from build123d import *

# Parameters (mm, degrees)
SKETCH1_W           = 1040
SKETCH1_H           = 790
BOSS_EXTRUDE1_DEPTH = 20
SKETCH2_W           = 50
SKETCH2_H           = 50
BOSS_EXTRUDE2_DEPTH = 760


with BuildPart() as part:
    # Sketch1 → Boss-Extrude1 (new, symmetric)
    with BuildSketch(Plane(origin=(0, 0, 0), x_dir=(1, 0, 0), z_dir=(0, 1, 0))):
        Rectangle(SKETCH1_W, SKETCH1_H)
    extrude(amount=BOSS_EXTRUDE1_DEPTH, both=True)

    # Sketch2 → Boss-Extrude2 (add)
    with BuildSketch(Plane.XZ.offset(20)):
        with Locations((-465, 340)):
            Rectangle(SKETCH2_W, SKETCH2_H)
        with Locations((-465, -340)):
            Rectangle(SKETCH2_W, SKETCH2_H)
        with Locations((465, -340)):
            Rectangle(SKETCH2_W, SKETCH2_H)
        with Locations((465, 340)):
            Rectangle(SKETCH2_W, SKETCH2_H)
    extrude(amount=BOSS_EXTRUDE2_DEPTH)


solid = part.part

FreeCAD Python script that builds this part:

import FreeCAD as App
import Part
import Sketcher
from FreeCAD import Vector
Q = App.Units.Quantity


def add_polygon(sketch, points):
    """Adds a closed chain of lines whose ends are joined by coincident constraints."""
    first, n = sketch.GeometryCount, len(points)
    for a, b in zip(points, points[1:] + points[:1]):
        sketch.addGeometry(Part.LineSegment(App.Vector(*a, 0), App.Vector(*b, 0)), False)
    for i in range(n):
        sketch.addConstraint(Sketcher.Constraint("Coincident", first + i, 2, first + (i + 1) % n, 1))

doc = App.newDocument("Part")
body = doc.addObject("PartDesign::Body", "Body")

# Sketch on XZ plane
sketch1 = body.newObject("Sketcher::SketchObject", "Sketch")
sketch1.AttachmentSupport = (doc.getObject("XZ_Plane"), [""])
sketch1.MapMode = "FlatFace"
add_polygon(sketch1, [(-520, -395), (-520, 395), (520, 395), (520, -395)])  # lines 0-3
sketch1.addConstraint(Sketcher.Constraint("Vertical", 0))
sketch1.addConstraint(Sketcher.Constraint("Horizontal", 1))
sketch1.addConstraint(Sketcher.Constraint("Vertical", 2))
sketch1.addConstraint(Sketcher.Constraint("Horizontal", 3))
sketch1.addConstraint(Sketcher.Constraint("Symmetric", 0, 2, 2, 2, -1, 1))
sketch1.addConstraint(Sketcher.Constraint("DistanceX", 1, 1, 1, 2, Q("1040 mm")))
sketch1.addConstraint(Sketcher.Constraint("DistanceY", 0, 1, 0, 2, Q("790 mm")))
pad1 = body.newObject("PartDesign::Pad", "Pad")
pad1.Profile = sketch1
pad1.Length = 40
pad1.Midplane = True

# Sketch on XZ plane
sketch2 = body.newObject("Sketcher::SketchObject", "Sketch001")
sketch2.AttachmentSupport = (doc.getObject("XZ_Plane"), [""])
sketch2.MapMode = "FlatFace"
sketch2.AttachmentOffset = App.Placement(Vector(0, 0, 20), App.Rotation())
add_polygon(sketch2, [(-490, 365), (-490, 315), (-440, 315), (-440, 365)])  # lines 0-3
add_polygon(sketch2, [(-490, -315), (-490, -365), (-440, -365), (-440, -315)])  # lines 4-7
add_polygon(sketch2, [(440, -315), (440, -365), (490, -365), (490, -315)])  # lines 8-11
add_polygon(sketch2, [(440, 365), (440, 315), (490, 315), (490, 365)])  # lines 12-15
sketch2.addConstraint(Sketcher.Constraint("Vertical", 0))
sketch2.addConstraint(Sketcher.Constraint("Horizontal", 1))
sketch2.addConstraint(Sketcher.Constraint("Vertical", 2))
sketch2.addConstraint(Sketcher.Constraint("Horizontal", 3))
sketch2.addConstraint(Sketcher.Constraint("Vertical", 4))
sketch2.addConstraint(Sketcher.Constraint("Horizontal", 5))
sketch2.addConstraint(Sketcher.Constraint("Vertical", 6))
sketch2.addConstraint(Sketcher.Constraint("Horizontal", 7))
sketch2.addConstraint(Sketcher.Constraint("Vertical", 8))
sketch2.addConstraint(Sketcher.Constraint("Horizontal", 9))
sketch2.addConstraint(Sketcher.Constraint("Vertical", 10))
sketch2.addConstraint(Sketcher.Constraint("Horizontal", 11))
sketch2.addConstraint(Sketcher.Constraint("Vertical", 12))
sketch2.addConstraint(Sketcher.Constraint("Horizontal", 13))
sketch2.addConstraint(Sketcher.Constraint("Vertical", 14))
sketch2.addConstraint(Sketcher.Constraint("Horizontal", 15))
sketch2.addConstraint(Sketcher.Constraint("Symmetric", 2, 2, 8, 2, -1, 1))
sketch2.addConstraint(Sketcher.Constraint("Symmetric", 0, 2, 10, 2, -1, 1))
sketch2.addConstraint(Sketcher.Constraint("Symmetric", 6, 2, 12, 2, -1, 1))
sketch2.addConstraint(Sketcher.Constraint("Symmetric", 4, 2, 14, 2, -1, 1))
sketch2.addConstraint(Sketcher.Constraint("Symmetric", 5, 2, 8, 2, -2))
sketch2.addConstraint(Sketcher.Constraint("Symmetric", 7, 2, 10, 2, -2))
sketch2.addConstraint(Sketcher.Constraint("Equal", 15, 0))
sketch2.addConstraint(Sketcher.Constraint("DistanceX", 1, 1, 1, 2, Q("50 mm")))
sketch2.addConstraint(Sketcher.Constraint("DistanceX", 0, 2, -1, 1, Q("490 mm")))
sketch2.addConstraint(Sketcher.Constraint("DistanceY", -1, 1, 0, 2, Q("315 mm")))
pad2 = body.newObject("PartDesign::Pad", "Pad001")
pad2.Profile = sketch2
pad2.Length = 760

doc.recompute()
